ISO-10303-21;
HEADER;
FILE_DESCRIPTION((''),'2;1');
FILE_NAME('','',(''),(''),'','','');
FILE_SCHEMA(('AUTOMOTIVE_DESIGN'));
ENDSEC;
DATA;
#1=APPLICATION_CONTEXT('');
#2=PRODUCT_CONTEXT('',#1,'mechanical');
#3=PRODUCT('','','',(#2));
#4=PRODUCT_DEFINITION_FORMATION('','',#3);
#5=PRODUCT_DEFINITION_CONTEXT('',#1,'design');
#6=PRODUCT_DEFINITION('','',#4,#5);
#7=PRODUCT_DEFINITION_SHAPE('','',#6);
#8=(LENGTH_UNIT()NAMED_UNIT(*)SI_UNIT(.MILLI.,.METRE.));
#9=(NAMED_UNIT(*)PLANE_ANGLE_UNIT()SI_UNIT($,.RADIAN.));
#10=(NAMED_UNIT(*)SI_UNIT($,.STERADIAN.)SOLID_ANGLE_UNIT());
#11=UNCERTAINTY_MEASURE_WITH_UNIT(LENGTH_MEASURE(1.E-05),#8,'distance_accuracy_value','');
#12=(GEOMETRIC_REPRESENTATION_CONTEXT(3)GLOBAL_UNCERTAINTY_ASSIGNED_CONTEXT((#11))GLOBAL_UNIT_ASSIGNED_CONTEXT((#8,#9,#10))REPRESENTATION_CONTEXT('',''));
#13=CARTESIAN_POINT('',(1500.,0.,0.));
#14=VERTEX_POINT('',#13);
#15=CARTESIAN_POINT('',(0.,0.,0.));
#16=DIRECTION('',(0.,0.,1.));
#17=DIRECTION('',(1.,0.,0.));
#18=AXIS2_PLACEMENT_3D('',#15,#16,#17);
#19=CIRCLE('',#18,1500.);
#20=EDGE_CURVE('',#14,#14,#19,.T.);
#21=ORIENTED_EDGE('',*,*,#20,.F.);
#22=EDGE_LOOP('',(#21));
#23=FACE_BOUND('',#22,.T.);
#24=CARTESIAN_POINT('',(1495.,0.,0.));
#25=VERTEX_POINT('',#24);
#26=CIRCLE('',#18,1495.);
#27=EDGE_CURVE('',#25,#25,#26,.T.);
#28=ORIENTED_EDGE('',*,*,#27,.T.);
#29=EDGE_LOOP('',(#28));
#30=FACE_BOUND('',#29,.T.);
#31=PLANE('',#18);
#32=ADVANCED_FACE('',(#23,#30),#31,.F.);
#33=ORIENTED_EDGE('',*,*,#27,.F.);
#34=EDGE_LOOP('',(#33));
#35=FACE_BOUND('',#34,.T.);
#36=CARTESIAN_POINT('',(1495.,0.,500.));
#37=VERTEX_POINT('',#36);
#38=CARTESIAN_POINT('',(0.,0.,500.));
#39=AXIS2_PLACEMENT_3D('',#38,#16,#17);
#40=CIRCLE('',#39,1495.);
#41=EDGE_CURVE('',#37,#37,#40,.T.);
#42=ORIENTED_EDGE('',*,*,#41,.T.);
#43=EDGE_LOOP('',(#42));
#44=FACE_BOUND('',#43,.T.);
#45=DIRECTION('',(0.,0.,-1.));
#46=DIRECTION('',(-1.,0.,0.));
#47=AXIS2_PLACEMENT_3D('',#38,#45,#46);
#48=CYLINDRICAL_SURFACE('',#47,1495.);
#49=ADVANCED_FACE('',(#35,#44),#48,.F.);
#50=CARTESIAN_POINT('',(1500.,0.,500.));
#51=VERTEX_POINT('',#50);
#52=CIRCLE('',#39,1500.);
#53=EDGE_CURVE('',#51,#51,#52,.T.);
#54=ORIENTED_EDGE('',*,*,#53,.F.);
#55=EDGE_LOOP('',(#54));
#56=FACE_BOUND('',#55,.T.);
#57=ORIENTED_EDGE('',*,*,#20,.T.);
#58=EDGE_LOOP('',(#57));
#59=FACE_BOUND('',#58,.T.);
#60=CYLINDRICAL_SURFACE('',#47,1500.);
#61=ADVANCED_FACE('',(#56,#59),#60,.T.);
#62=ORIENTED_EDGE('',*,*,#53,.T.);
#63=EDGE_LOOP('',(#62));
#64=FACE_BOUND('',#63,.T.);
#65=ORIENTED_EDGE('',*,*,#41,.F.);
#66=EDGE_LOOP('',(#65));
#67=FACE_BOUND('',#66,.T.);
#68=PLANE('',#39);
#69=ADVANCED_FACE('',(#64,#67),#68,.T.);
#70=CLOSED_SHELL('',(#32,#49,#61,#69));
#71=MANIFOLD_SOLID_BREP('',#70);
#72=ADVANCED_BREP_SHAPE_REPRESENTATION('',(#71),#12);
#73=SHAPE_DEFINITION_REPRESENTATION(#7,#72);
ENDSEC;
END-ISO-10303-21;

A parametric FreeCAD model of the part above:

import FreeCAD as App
import Part
import Sketcher
Q = App.Units.Quantity

doc = App.newDocument("Part")
body = doc.addObject("PartDesign::Body", "Body")

sketch1 = body.newObject("Sketcher::SketchObject", "Sketch")
sketch1.AttachmentSupport = (doc.getObject("XY_Plane"), [""])
sketch1.MapMode = "FlatFace"
sketch1.addGeometry([
    Part.Circle(App.Vector(0, 0, 0), App.Vector(0, 0, 1), 1500),
    Part.Circle(App.Vector(0, 0, 0), App.Vector(0, 0, 1), 1495),
], False)
sketch1.addConstraint([
    Sketcher.Constraint("Coincident", 0, 3, -1, 1),
    Sketcher.Constraint("Coincident", 1, 3, -1, 1),
    Sketcher.Constraint("Diameter", 0, Q("3000 mm")),
    Sketcher.Constraint("Diameter", 1, Q("2990 mm")),
])
pad1 = body.newObject("PartDesign::Pad", "Pad")
pad1.Profile = sketch1
pad1.Length = 500

doc.recompute()
